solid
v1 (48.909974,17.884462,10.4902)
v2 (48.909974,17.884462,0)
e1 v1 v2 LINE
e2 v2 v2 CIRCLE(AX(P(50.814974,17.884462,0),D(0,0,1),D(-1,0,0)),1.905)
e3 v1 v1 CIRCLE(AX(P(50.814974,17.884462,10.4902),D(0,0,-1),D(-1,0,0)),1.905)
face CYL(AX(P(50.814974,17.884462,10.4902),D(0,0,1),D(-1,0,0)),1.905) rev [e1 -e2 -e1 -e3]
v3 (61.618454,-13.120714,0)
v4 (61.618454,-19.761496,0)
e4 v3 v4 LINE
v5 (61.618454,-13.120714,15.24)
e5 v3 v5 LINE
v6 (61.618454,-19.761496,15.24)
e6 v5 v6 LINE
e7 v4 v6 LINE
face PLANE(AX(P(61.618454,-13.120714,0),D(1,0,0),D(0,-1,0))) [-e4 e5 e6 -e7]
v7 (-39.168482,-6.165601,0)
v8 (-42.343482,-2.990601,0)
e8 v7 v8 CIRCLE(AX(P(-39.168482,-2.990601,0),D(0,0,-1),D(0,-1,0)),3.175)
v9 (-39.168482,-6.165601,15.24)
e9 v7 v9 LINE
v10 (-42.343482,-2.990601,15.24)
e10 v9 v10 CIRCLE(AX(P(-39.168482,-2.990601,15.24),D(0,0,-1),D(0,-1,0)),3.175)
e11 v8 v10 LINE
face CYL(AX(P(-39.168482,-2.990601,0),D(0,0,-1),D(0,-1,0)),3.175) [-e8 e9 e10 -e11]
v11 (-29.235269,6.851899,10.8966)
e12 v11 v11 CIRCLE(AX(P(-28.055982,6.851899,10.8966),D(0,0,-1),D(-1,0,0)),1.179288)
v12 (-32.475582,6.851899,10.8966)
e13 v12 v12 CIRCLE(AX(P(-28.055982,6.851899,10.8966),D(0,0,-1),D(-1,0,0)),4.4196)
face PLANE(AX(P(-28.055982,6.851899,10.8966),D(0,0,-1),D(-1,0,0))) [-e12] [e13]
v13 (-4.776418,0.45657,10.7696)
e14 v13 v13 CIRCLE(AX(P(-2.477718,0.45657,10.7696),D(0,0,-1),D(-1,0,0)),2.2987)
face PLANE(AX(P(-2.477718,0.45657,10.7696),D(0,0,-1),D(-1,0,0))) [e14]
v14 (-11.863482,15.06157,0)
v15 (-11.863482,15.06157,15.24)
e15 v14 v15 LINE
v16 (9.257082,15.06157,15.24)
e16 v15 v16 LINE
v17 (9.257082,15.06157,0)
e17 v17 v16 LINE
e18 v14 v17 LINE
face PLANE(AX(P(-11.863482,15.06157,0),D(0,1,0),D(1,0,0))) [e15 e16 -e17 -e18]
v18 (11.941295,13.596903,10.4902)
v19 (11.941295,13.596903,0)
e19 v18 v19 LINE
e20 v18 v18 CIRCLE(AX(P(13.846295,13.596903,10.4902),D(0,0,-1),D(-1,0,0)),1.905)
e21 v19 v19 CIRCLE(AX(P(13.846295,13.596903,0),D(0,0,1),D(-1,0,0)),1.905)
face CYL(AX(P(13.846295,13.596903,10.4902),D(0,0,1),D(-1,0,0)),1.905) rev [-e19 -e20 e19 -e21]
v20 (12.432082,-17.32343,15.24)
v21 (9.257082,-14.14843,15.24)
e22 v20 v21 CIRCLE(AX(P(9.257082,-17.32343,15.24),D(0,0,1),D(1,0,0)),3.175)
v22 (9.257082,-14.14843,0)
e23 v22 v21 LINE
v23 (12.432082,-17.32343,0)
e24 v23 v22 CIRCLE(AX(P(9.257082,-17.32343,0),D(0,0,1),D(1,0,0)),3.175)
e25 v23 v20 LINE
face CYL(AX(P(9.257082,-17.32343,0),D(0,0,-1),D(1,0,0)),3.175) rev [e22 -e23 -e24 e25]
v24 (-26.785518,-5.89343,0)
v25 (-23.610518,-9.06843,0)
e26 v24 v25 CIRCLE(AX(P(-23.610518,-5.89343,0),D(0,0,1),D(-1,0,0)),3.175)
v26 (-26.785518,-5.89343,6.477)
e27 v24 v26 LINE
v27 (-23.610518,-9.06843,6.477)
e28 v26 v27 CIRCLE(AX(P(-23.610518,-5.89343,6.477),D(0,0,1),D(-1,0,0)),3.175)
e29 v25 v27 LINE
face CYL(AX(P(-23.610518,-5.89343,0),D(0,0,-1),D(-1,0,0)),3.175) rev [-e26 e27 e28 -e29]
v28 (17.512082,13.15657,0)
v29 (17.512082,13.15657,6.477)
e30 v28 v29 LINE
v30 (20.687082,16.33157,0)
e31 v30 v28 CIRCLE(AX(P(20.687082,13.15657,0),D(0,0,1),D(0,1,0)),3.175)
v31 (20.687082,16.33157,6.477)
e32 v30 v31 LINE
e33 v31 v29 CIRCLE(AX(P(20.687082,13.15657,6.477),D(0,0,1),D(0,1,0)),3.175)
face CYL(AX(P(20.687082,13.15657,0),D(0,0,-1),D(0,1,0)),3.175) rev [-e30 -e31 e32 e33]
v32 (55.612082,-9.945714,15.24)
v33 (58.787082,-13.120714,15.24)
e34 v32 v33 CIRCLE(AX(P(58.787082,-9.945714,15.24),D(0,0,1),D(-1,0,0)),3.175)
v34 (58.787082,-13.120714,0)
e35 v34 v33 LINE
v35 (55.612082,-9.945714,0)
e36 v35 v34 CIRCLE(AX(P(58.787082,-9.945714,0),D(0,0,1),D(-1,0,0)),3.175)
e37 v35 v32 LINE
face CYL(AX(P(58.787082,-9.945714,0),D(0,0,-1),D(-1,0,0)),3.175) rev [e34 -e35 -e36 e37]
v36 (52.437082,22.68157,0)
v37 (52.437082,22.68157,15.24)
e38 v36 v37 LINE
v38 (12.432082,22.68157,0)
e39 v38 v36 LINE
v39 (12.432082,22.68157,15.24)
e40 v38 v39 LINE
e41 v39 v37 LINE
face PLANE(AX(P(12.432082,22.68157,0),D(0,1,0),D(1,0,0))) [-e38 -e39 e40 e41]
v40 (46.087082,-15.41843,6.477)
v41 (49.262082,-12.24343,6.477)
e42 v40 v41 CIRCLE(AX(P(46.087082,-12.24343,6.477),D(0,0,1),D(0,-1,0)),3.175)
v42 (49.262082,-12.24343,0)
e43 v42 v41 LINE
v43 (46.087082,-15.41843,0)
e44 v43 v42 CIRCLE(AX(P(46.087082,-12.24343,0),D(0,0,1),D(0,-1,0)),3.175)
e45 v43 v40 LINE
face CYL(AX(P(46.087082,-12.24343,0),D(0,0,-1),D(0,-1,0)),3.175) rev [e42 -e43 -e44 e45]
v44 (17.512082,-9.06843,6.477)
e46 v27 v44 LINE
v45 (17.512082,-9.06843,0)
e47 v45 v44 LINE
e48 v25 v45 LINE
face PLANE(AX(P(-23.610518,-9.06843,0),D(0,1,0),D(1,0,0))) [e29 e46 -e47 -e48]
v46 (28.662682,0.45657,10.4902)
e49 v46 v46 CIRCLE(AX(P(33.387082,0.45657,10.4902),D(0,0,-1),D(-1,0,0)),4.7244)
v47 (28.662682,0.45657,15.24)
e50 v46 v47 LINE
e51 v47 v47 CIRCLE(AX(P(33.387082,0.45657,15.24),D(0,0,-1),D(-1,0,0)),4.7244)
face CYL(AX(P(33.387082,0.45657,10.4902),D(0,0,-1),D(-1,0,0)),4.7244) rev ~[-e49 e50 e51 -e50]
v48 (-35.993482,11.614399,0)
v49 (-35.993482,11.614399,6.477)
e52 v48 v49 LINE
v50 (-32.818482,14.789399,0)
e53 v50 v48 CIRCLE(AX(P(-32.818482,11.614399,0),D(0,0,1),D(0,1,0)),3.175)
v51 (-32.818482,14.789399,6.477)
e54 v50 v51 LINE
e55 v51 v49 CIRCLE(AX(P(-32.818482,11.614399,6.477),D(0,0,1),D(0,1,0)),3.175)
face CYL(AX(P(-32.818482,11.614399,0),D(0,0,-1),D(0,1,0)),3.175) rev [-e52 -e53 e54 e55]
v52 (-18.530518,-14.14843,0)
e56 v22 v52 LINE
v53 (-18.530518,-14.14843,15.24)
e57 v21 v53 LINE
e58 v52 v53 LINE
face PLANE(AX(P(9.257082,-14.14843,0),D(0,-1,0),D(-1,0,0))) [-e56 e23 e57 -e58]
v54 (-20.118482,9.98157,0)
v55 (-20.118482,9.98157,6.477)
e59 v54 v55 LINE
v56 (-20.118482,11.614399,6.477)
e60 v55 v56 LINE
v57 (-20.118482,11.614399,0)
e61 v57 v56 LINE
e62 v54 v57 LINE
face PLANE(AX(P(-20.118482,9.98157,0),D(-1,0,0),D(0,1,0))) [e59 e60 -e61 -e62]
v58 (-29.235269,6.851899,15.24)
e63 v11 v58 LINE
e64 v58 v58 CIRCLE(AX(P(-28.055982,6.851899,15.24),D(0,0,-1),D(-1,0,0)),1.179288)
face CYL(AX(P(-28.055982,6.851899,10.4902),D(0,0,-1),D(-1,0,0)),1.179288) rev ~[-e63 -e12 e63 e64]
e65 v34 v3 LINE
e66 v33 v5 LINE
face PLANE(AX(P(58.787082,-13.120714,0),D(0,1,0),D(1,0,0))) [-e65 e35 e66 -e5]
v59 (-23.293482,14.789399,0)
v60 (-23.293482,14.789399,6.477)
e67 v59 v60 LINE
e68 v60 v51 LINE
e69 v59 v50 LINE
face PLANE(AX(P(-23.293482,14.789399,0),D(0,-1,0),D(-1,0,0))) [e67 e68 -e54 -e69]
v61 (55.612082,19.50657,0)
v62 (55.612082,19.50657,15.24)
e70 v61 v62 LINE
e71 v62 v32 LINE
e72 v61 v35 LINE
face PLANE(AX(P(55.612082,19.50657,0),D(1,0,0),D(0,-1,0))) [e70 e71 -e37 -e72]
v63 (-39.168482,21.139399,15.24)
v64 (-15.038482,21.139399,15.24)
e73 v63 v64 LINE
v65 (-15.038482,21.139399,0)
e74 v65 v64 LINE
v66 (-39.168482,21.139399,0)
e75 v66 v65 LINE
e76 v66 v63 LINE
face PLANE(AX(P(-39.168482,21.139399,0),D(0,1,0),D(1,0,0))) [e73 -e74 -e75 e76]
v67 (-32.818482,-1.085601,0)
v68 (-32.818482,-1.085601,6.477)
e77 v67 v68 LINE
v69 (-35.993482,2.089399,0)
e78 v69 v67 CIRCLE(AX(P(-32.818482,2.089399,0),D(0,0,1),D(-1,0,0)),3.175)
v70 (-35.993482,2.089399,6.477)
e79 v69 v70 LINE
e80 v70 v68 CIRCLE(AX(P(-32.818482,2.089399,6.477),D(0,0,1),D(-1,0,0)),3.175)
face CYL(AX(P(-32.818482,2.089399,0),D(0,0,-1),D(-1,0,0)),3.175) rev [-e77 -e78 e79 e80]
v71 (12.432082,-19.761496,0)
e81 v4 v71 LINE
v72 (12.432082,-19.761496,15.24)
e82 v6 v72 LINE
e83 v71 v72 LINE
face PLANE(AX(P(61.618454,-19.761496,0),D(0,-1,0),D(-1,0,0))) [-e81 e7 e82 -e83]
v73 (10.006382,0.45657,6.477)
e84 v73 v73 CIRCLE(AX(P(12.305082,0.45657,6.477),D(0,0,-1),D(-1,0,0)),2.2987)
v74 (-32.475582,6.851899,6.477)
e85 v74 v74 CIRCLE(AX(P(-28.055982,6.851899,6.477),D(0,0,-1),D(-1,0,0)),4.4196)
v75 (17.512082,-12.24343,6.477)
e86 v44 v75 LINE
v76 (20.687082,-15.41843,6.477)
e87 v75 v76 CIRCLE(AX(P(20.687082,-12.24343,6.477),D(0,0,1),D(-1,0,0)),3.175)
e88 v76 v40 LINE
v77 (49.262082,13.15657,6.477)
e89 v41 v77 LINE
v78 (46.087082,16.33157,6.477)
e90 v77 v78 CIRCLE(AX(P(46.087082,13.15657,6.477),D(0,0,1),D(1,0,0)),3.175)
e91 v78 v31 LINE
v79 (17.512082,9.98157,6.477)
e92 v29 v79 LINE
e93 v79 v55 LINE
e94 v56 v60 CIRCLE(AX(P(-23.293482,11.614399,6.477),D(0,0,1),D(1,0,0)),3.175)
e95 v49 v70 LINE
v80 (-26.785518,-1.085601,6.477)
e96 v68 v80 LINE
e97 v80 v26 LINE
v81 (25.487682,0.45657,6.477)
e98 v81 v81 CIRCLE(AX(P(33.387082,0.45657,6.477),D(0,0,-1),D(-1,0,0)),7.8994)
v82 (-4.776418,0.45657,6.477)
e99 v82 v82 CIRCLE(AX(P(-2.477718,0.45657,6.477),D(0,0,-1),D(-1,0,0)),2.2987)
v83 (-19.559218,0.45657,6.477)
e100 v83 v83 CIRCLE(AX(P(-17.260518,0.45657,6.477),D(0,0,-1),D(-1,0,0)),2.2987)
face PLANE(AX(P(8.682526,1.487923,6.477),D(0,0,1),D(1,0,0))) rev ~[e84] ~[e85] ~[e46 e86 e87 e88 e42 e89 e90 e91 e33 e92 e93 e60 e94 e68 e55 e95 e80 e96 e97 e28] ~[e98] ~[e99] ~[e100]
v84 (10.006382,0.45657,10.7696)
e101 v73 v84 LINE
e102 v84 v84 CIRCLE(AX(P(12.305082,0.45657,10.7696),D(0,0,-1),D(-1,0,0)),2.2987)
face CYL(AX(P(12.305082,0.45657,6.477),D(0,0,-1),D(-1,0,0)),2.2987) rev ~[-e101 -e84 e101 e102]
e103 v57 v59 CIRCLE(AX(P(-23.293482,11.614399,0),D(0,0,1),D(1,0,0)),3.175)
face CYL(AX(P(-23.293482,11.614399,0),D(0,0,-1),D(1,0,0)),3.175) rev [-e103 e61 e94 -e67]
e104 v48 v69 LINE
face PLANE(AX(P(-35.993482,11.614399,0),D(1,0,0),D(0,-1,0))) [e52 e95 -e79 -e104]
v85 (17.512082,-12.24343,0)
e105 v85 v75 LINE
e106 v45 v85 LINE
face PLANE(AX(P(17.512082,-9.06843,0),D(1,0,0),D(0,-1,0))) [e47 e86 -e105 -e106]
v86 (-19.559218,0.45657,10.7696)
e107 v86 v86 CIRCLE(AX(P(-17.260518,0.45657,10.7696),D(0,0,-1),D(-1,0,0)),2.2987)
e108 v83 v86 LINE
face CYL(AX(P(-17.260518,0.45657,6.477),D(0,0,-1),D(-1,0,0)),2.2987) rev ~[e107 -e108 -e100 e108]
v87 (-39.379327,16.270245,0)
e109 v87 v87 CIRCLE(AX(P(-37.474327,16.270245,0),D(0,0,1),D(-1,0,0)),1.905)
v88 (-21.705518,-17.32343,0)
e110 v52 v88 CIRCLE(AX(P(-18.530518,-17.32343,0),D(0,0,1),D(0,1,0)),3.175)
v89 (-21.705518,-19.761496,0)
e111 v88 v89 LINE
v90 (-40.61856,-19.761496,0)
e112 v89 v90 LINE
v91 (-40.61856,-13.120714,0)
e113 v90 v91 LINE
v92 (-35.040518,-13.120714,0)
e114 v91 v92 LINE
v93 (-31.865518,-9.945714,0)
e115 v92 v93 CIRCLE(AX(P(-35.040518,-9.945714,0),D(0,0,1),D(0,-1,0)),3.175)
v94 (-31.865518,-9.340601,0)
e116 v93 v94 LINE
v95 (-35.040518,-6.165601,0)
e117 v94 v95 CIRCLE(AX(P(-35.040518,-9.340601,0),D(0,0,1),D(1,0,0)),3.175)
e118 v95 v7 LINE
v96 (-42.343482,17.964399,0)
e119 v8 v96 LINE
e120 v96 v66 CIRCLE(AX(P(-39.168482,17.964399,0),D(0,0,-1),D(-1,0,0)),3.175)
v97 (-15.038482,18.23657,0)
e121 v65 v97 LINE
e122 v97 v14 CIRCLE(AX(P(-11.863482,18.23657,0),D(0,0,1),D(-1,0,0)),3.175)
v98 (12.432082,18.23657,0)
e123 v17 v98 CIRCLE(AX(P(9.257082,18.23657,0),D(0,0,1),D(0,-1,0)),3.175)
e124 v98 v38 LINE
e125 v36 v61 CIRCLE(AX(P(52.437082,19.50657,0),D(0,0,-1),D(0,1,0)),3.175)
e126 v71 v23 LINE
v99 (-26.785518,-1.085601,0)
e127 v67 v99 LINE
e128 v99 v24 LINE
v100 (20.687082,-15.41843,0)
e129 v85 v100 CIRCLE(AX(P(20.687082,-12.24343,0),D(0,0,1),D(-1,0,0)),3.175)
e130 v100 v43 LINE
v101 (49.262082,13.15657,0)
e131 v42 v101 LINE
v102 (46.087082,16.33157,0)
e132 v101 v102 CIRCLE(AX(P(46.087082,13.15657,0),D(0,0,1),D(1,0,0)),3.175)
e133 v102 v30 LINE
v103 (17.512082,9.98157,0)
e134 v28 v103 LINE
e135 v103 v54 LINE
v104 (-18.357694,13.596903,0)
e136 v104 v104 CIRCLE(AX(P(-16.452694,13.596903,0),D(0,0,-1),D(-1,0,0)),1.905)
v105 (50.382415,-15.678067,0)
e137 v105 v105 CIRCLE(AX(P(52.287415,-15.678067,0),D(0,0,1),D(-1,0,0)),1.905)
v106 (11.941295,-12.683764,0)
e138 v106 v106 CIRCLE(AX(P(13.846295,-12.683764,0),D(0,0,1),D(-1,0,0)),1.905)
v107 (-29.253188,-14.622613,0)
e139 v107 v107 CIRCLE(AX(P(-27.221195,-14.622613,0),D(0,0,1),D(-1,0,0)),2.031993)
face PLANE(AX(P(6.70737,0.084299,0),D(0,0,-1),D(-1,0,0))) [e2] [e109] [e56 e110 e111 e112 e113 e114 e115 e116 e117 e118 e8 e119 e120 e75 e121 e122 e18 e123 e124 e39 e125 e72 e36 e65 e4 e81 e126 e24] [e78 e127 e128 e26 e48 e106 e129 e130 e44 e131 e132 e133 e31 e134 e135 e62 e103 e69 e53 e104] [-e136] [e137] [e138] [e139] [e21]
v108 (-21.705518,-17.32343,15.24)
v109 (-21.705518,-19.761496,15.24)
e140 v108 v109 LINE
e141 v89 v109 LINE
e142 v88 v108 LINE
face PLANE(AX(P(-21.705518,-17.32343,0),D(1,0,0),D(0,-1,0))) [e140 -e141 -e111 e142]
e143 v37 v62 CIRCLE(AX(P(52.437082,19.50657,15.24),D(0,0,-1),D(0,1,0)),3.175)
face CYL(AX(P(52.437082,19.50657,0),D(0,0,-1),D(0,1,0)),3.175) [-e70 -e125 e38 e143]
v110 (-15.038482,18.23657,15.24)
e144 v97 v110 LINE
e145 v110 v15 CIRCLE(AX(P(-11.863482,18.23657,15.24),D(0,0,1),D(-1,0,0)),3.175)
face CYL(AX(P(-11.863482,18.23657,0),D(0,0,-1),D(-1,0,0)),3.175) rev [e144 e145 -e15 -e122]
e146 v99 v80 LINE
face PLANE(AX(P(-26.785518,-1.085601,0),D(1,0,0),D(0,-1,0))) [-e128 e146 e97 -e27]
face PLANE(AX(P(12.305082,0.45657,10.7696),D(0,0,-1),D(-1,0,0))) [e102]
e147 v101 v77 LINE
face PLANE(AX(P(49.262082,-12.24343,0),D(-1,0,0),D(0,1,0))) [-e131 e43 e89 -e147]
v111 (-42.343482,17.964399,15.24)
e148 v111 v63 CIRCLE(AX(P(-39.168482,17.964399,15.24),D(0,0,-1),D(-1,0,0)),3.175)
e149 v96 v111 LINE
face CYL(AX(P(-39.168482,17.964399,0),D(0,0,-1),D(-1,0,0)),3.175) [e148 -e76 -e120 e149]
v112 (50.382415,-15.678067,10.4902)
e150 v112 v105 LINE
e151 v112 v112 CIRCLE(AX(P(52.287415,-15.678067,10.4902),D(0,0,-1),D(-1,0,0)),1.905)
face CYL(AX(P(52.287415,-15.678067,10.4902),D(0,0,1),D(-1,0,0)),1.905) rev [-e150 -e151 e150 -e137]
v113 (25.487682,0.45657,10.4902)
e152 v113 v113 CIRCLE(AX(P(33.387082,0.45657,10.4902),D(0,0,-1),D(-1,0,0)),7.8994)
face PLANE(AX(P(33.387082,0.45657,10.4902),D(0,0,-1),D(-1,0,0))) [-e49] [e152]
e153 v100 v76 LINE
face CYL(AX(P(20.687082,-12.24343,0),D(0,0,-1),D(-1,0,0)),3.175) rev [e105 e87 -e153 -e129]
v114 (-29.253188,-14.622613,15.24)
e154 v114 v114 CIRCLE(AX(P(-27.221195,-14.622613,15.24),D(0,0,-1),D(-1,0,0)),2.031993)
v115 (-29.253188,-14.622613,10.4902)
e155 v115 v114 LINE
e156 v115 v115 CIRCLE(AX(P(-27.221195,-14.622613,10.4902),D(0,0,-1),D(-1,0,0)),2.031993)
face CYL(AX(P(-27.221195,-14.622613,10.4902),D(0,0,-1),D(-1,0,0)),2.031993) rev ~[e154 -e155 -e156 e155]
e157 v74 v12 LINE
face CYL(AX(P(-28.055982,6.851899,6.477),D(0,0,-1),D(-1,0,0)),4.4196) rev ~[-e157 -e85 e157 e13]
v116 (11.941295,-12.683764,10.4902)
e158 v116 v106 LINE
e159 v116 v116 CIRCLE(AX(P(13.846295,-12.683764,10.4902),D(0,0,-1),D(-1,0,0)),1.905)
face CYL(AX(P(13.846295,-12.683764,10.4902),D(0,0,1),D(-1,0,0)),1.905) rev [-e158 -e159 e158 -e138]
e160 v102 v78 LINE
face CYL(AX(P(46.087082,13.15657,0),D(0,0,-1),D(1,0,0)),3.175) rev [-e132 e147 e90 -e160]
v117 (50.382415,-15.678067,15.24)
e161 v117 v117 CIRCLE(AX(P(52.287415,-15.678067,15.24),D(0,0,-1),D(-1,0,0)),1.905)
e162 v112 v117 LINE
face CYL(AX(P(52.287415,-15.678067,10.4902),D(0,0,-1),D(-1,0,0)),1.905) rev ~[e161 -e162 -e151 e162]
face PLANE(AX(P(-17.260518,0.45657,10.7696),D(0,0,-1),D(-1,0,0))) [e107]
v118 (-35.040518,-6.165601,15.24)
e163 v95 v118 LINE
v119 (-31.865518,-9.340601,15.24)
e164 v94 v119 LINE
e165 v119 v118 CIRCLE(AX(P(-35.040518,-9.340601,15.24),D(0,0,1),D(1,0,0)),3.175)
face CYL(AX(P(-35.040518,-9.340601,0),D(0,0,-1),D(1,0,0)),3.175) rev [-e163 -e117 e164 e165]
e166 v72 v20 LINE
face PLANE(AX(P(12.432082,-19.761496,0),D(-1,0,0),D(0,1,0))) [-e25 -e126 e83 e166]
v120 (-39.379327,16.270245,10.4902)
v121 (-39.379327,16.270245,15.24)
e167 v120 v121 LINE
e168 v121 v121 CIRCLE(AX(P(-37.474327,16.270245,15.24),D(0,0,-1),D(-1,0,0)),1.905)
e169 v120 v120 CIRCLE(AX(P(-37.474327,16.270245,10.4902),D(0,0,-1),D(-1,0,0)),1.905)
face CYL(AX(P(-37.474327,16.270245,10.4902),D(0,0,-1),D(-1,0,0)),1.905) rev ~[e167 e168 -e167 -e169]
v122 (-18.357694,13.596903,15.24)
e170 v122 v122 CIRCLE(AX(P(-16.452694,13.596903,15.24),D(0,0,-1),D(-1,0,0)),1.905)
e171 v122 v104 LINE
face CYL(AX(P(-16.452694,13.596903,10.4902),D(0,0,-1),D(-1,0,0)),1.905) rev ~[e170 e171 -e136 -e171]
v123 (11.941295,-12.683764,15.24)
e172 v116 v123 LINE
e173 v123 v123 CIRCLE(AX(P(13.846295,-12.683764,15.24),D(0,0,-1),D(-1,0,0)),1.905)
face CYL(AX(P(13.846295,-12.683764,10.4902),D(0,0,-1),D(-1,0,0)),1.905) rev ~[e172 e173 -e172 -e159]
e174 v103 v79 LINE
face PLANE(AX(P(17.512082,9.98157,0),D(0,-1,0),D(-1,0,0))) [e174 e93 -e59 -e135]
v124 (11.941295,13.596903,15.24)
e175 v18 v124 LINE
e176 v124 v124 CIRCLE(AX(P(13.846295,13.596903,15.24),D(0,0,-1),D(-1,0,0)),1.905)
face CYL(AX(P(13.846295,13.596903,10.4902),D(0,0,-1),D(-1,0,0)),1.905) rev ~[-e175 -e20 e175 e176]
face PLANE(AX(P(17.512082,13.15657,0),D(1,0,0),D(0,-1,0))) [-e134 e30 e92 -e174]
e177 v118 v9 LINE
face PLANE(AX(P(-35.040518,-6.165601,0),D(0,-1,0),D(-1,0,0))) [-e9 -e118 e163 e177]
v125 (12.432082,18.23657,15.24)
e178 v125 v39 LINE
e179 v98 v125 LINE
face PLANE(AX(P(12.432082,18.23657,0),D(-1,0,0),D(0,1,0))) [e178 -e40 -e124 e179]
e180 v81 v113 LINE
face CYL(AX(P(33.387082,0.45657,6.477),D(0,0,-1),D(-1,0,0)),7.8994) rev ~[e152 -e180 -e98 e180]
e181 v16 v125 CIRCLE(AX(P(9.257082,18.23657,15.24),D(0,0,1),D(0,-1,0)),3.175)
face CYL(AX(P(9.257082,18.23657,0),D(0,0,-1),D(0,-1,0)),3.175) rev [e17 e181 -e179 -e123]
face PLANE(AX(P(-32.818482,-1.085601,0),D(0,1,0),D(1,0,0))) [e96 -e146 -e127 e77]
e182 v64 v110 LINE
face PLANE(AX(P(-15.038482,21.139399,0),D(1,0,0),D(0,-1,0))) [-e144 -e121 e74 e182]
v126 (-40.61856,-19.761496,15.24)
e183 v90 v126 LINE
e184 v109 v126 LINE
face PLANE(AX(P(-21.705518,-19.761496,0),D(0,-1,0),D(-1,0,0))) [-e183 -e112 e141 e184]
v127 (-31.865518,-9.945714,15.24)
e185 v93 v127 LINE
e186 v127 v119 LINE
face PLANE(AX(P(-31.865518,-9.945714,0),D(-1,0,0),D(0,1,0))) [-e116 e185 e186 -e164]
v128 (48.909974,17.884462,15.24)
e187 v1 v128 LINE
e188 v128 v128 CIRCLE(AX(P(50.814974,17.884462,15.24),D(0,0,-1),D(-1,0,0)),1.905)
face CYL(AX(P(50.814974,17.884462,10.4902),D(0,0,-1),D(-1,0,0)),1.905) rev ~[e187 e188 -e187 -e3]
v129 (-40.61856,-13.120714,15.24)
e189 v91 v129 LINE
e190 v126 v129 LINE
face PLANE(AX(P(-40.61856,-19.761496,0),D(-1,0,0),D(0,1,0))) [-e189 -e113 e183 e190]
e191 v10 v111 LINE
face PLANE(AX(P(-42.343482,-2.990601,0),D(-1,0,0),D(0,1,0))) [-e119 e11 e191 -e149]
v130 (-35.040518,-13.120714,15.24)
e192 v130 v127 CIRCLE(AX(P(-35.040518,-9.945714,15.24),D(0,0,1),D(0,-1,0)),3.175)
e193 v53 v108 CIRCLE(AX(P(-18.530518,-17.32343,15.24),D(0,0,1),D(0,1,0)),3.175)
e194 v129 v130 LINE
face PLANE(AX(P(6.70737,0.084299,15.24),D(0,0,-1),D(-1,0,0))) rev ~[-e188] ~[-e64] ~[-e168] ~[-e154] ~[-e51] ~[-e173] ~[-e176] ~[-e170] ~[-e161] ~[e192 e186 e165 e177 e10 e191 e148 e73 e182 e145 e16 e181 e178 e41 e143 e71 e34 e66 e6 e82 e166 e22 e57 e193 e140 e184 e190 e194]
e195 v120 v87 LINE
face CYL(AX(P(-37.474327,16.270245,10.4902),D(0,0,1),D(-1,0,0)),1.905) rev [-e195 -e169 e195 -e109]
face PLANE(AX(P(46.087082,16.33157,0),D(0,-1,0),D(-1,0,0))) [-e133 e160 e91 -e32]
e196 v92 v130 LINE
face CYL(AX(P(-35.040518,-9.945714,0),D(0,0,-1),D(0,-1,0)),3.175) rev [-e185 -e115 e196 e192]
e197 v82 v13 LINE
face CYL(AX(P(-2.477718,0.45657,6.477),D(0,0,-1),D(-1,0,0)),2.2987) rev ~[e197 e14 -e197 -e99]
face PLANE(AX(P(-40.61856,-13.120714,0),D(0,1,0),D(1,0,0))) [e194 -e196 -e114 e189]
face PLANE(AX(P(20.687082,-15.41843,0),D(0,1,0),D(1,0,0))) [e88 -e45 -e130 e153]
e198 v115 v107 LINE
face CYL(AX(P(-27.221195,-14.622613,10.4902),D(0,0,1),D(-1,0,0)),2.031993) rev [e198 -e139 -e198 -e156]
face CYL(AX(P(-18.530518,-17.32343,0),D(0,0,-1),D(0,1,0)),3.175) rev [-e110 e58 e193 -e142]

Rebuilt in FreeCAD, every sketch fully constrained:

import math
import FreeCAD as App
import Part
import Sketcher
from FreeCAD import Vector
Q = App.Units.Quantity

doc = App.newDocument("Part")
body = doc.addObject("PartDesign::Body", "Body")

sketch1 = body.newObject("Sketcher::SketchObject", "Sketch")
sketch1.AttachmentSupport = (doc.getObject("XY_Plane"), [""])
sketch1.MapMode = "FlatFace"
sketch1.addGeometry(Part.LineSegment(Vector(-42.3, 18, 0), Vector(-42.3, -3, 0)), False)
sketch1.addGeometry(Part.ArcOfCircle(Part.Circle(Vector(-39.2, -3, 0), Vector(0, 0, 1), 3.2), math.radians(180), math.radians(270)), False)
sketch1.addGeometry(Part.LineSegment(Vector(-39.2, -6.2, 0), Vector(-35, -6.2, 0)), False)
sketch1.addGeometry(Part.ArcOfCircle(Part.Circle(Vector(-35, -9.3, 0), Vector(0, 0, 1), 3.2), math.radians(0), math.radians(90)), False)
sketch1.addGeometry(Part.LineSegment(Vector(-31.9, -9.3, 0), Vector(-31.9, -9.9, 0)), False)
sketch1.addGeometry(Part.ArcOfCircle(Part.Circle(Vector(-35, -9.9, 0), Vector(0, 0, 1), 3.2), math.radians(-90), math.radians(0)), False)
sketch1.addGeometry(Part.LineSegment(Vector(-35, -13.1, 0), Vector(-40.6, -13.1, 0)), False)
sketch1.addGeometry(Part.LineSegment(Vector(-40.6, -13.1, 0), Vector(-40.6, -19.8, 0)), False)
sketch1.addGeometry(Part.LineSegment(Vector(-40.6, -19.8, 0), Vector(-21.7, -19.8, 0)), False)
sketch1.addGeometry(Part.LineSegment(Vector(-21.7, -19.8, 0), Vector(-21.7, -17.3, 0)), False)
sketch1.addGeometry(Part.ArcOfCircle(Part.Circle(Vector(-18.5, -17.3, 0), Vector(0, 0, 1), 3.2), math.radians(90), math.radians(180)), False)
sketch1.addGeometry(Part.LineSegment(Vector(-18.5, -14.1, 0), Vector(9.3, -14.1, 0)), False)
sketch1.addGeometry(Part.ArcOfCircle(Part.Circle(Vector(9.3, -17.3, 0), Vector(0, 0, 1), 3.2), math.radians(0), math.radians(90)), False)
sketch1.addGeometry(Part.LineSegment(Vector(12.4, -17.3, 0), Vector(12.4, -19.8, 0)), False)
sketch1.addGeometry(Part.LineSegment(Vector(12.4, -19.8, 0), Vector(61.6, -19.8, 0)), False)
sketch1.addGeometry(Part.LineSegment(Vector(61.6, -19.8, 0), Vector(61.6, -13.1, 0)), False)
sketch1.addGeometry(Part.LineSegment(Vector(61.6, -13.1, 0), Vector(58.8, -13.1, 0)), False)
sketch1.addGeometry(Part.ArcOfCircle(Part.Circle(Vector(58.8, -9.9, 0), Vector(0, 0, 1), 3.2), math.radians(-180), math.radians(-90)), False)
sketch1.addGeometry(Part.LineSegment(Vector(55.6, -9.9, 0), Vector(55.6, 19.5, 0)), False)
sketch1.addGeometry(Part.ArcOfCircle(Part.Circle(Vector(52.4, 19.5, 0), Vector(0, 0, 1), 3.2), math.radians(0), math.radians(90)), False)
sketch1.addGeometry(Part.LineSegment(Vector(52.4, 22.7, 0), Vector(12.4, 22.7, 0)), False)
sketch1.addGeometry(Part.LineSegment(Vector(12.4, 22.7, 0), Vector(12.4, 18.2, 0)), False)
sketch1.addGeometry(Part.ArcOfCircle(Part.Circle(Vector(9.3, 18.2, 0), Vector(0, 0, 1), 3.2), math.radians(-90), math.radians(0)), False)
sketch1.addGeometry(Part.LineSegment(Vector(9.3, 15.1, 0), Vector(-11.9, 15.1, 0)), False)
sketch1.addGeometry(Part.ArcOfCircle(Part.Circle(Vector(-11.9, 18.2, 0), Vector(0, 0, 1), 3.2), math.radians(-180), math.radians(-90)), False)
sketch1.addGeometry(Part.LineSegment(Vector(-15, 18.2, 0), Vector(-15, 21.1, 0)), False)
sketch1.addGeometry(Part.LineSegment(Vector(-15, 21.1, 0), Vector(-39.2, 21.1, 0)), False)
sketch1.addGeometry(Part.ArcOfCircle(Part.Circle(Vector(-39.2, 18, 0), Vector(0, 0, 1), 3.2), math.radians(90), math.radians(180)), False)
sketch1.addConstraint(Sketcher.Constraint("Tangent", 0, 2, 1, 1))
sketch1.addConstraint(Sketcher.Constraint("Tangent", 1, 2, 2, 1))
sketch1.addConstraint(Sketcher.Constraint("Tangent", 2, 2, 3, 2))
sketch1.addConstraint(Sketcher.Constraint("Tangent", 3, 1, 4, 1))
sketch1.addConstraint(Sketcher.Constraint("Tangent", 4, 2, 5, 2))
sketch1.addConstraint(Sketcher.Constraint("Tangent", 5, 1, 6, 1))
sketch1.addConstraint(Sketcher.Constraint("Coincident", 6, 2, 7, 1))
sketch1.addConstraint(Sketcher.Constraint("Coincident", 7, 2, 8, 1))
sketch1.addConstraint(Sketcher.Constraint("Coincident", 8, 2, 9, 1))
sketch1.addConstraint(Sketcher.Constraint("Tangent", 9, 2, 10, 2))
sketch1.addConstraint(Sketcher.Constraint("Tangent", 10, 1, 11, 1))
sketch1.addConstraint(Sketcher.Constraint("Tangent", 11, 2, 12, 2))
sketch1.addConstraint(Sketcher.Constraint("Tangent", 12, 1, 13, 1))
sketch1.addConstraint(Sketcher.Constraint("Coincident", 13, 2, 14, 1))
sketch1.addConstraint(Sketcher.Constraint("Coincident", 14, 2, 15, 1))
sketch1.addConstraint(Sketcher.Constraint("Coincident", 15, 2, 16, 1))
sketch1.addConstraint(Sketcher.Constraint("Tangent", 16, 2, 17, 2))
sketch1.addConstraint(Sketcher.Constraint("Tangent", 17, 1, 18, 1))
sketch1.addConstraint(Sketcher.Constraint("Tangent", 18, 2, 19, 1))
sketch1.addConstraint(Sketcher.Constraint("Tangent", 19, 2, 20, 1))
sketch1.addConstraint(Sketcher.Constraint("Coincident", 20, 2, 21, 1))
sketch1.addConstraint(Sketcher.Constraint("Tangent", 21, 2, 22, 2))
sketch1.addConstraint(Sketcher.Constraint("Tangent", 22, 1, 23, 1))
sketch1.addConstraint(Sketcher.Constraint("Tangent", 23, 2, 24, 2))
sketch1.addConstraint(Sketcher.Constraint("Tangent", 24, 1, 25, 1))
sketch1.addConstraint(Sketcher.Constraint("Coincident", 25, 2, 26, 1))
sketch1.addConstraint(Sketcher.Constraint("Tangent", 26, 2, 27, 1))
sketch1.addConstraint(Sketcher.Constraint("Tangent", 27, 2, 0, 1))
sketch1.addConstraint(Sketcher.Constraint("Vertical", 0))
sketch1.addConstraint(Sketcher.Constraint("Horizontal", 2))
sketch1.addConstraint(Sketcher.Constraint("Vertical", 4))
sketch1.addConstraint(Sketcher.Constraint("Horizontal", 6))
sketch1.addConstraint(Sketcher.Constraint("Vertical", 7))
sketch1.addConstraint(Sketcher.Constraint("Horizontal", 8))
sketch1.addConstraint(Sketcher.Constraint("Vertical", 9))
sketch1.addConstraint(Sketcher.Constraint("Horizontal", 11))
sketch1.addConstraint(Sketcher.Constraint("Vertical", 13))
sketch1.addConstraint(Sketcher.Constraint("Horizontal", 14))
sketch1.addConstraint(Sketcher.Constraint("Vertical", 15))
sketch1.addConstraint(Sketcher.Constraint("Horizontal", 16))
sketch1.addConstraint(Sketcher.Constraint("Vertical", 18))
sketch1.addConstraint(Sketcher.Constraint("Horizontal", 20))
sketch1.addConstraint(Sketcher.Constraint("Vertical", 21))
sketch1.addConstraint(Sketcher.Constraint("Horizontal", 23))
sketch1.addConstraint(Sketcher.Constraint("Vertical", 25))
sketch1.addConstraint(Sketcher.Constraint("Horizontal", 26))
sketch1.addConstraint(Sketcher.Constraint("Equal", 1, 3))
sketch1.addConstraint(Sketcher.Constraint("Equal", 3, 5))
sketch1.addConstraint(Sketcher.Constraint("Equal", 5, 10))
sketch1.addConstraint(Sketcher.Constraint("Equal", 10, 12))
sketch1.addConstraint(Sketcher.Constraint("Equal", 12, 17))
sketch1.addConstraint(Sketcher.Constraint("Equal", 17, 19))
sketch1.addConstraint(Sketcher.Constraint("Equal", 19, 22))
sketch1.addConstraint(Sketcher.Constraint("Equal", 22, 24))
sketch1.addConstraint(Sketcher.Constraint("Equal", 24, 27))
sketch1.addConstraint(Sketcher.Constraint("Horizontal", 5, 3, 17, 3))
sketch1.addConstraint(Sketcher.Constraint("Horizontal", 8, 2, 13, 2))
sketch1.addConstraint(Sketcher.Constraint("Vertical", 12, 3, 22, 3))
sketch1.addConstraint(Sketcher.Constraint("Radius", 1, Q("0.125 in")))
sketch1.addConstraint(Sketcher.Constraint("DistanceX", 26, 2, 26, 1, Q("0.95 in")))
sketch1.addConstraint(Sketcher.Constraint("DistanceX", 12, 3, 19, 3, Q("1.7 in")))
sketch1.addConstraint(Sketcher.Constraint("DistanceY", 12, 3, 22, 3, Q("1.4 in")))
sketch1.addConstraint(Sketcher.Constraint("DistanceX", 4, 2, 8, 2, Q("0.4 in")))
sketch1.addConstraint(Sketcher.Constraint("DistanceY", 22, 1, 20, 2, Q("0.3 in")))
sketch1.addConstraint(Sketcher.Constraint("DistanceX", 11, 1, 11, 2, Q("1.094 in")))
sketch1.addConstraint(Sketcher.Constraint("DistanceY", 0, 2, 0, 1, Q("0.825 in")))
sketch1.addConstraint(Sketcher.Constraint("DistanceX", 6, 2, 6, 1, 5.578042))
sketch1.addConstraint(Sketcher.Constraint("DistanceY", 7, 2, 7, 1, 6.640781))
sketch1.addConstraint(Sketcher.Constraint("DistanceY", 25, 1, 25, 2, 2.90283))
sketch1.addConstraint(Sketcher.Constraint("DistanceY", 1, 3, -1, 1, 2.990601))
sketch1.addConstraint(Sketcher.Constraint("DistanceX", 2, 1, 2, 2, 4.127963))
sketch1.addConstraint(Sketcher.Constraint("DistanceX", 14, 1, 14, 2, 49.186372))
sketch1.addConstraint(Sketcher.Constraint("DistanceY", 4, 2, 4, 1, 0.605114))
sketch1.addConstraint(Sketcher.Constraint("DistanceX", 1, 3, -1, 1, 39.168482))
pad1 = body.newObject("PartDesign::Pad", "Pad")
pad1.Profile = sketch1
pad1.Length = Q("0.6 in")

sketch2 = body.newObject("Sketcher::SketchObject", "Sketch001")
sketch2.AttachmentSupport = (doc.getObject("XY_Plane"), [""])
sketch2.MapMode = "FlatFace"
sketch2.addGeometry(Part.LineSegment(Vector(-36, 11.6, 0), Vector(-36, 2.1, 0)), False)
sketch2.addGeometry(Part.ArcOfCircle(Part.Circle(Vector(-32.8, 2.1, 0), Vector(0, 0, 1), 3.2), math.radians(180), math.radians(270)), False)
sketch2.addGeometry(Part.LineSegment(Vector(-32.8, -1.1, 0), Vector(-26.8, -1.1, 0)), False)
sketch2.addGeometry(Part.LineSegment(Vector(-26.8, -1.1, 0), Vector(-26.8, -5.9, 0)), False)
sketch2.addGeometry(Part.ArcOfCircle(Part.Circle(Vector(-23.6, -5.9, 0), Vector(0, 0, 1), 3.2), math.radians(-180), math.radians(-90)), False)
sketch2.addGeometry(Part.LineSegment(Vector(-23.6, -9.1, 0), Vector(17.5, -9.1, 0)), False)
sketch2.addGeometry(Part.LineSegment(Vector(17.5, -9.1, 0), Vector(17.5, -12.2, 0)), False)
sketch2.addGeometry(Part.ArcOfCircle(Part.Circle(Vector(20.7, -12.2, 0), Vector(0, 0, 1), 3.2), math.radians(-180), math.radians(-90)), False)
sketch2.addGeometry(Part.LineSegment(Vector(20.7, -15.4, 0), Vector(46.1, -15.4, 0)), False)
sketch2.addGeometry(Part.ArcOfCircle(Part.Circle(Vector(46.1, -12.2, 0), Vector(0, 0, 1), 3.2), math.radians(-90), math.radians(0)), False)
sketch2.addGeometry(Part.LineSegment(Vector(49.3, -12.2, 0), Vector(49.3, 13.2, 0)), False)
sketch2.addGeometry(Part.ArcOfCircle(Part.Circle(Vector(46.1, 13.2, 0), Vector(0, 0, 1), 3.2), math.radians(0), math.radians(90)), False)
sketch2.addGeometry(Part.LineSegment(Vector(46.1, 16.3, 0), Vector(20.7, 16.3, 0)), False)
sketch2.addGeometry(Part.ArcOfCircle(Part.Circle(Vector(20.7, 13.2, 0), Vector(0, 0, 1), 3.2), math.radians(90), math.radians(180)), False)
sketch2.addGeometry(Part.LineSegment(Vector(17.5, 13.2, 0), Vector(17.5, 10, 0)), False)
sketch2.addGeometry(Part.LineSegment(Vector(17.5, 10, 0), Vector(-20.1, 10, 0)), False)
sketch2.addGeometry(Part.LineSegment(Vector(-20.1, 10, 0), Vector(-20.1, 11.6, 0)), False)
sketch2.addGeometry(Part.ArcOfCircle(Part.Circle(Vector(-23.3, 11.6, 0), Vector(0, 0, 1), 3.2), math.radians(0), math.radians(90)), False)
sketch2.addGeometry(Part.LineSegment(Vector(-23.3, 14.8, 0), Vector(-32.8, 14.8, 0)), False)
sketch2.addGeometry(Part.ArcOfCircle(Part.Circle(Vector(-32.8, 11.6, 0), Vector(0, 0, 1), 3.2), math.radians(90), math.radians(180)), False)
sketch2.addConstraint(Sketcher.Constraint("Tangent", 0, 2, 1, 1))
sketch2.addConstraint(Sketcher.Constraint("Tangent", 1, 2, 2, 1))
sketch2.addConstraint(Sketcher.Constraint("Coincident", 2, 2, 3, 1))
sketch2.addConstraint(Sketcher.Constraint("Tangent", 3, 2, 4, 1))
sketch2.addConstraint(Sketcher.Constraint("Tangent", 4, 2, 5, 1))
sketch2.addConstraint(Sketcher.Constraint("Coincident", 5, 2, 6, 1))
sketch2.addConstraint(Sketcher.Constraint("Tangent", 6, 2, 7, 1))
sketch2.addConstraint(Sketcher.Constraint("Tangent", 7, 2, 8, 1))
sketch2.addConstraint(Sketcher.Constraint("Tangent", 8, 2, 9, 1))
sketch2.addConstraint(Sketcher.Constraint("Tangent", 9, 2, 10, 1))
sketch2.addConstraint(Sketcher.Constraint("Tangent", 10, 2, 11, 1))
sketch2.addConstraint(Sketcher.Constraint("Tangent", 11, 2, 12, 1))
sketch2.addConstraint(Sketcher.Constraint("Tangent", 12, 2, 13, 1))
sketch2.addConstraint(Sketcher.Constraint("Tangent", 13, 2, 14, 1))
sketch2.addConstraint(Sketcher.Constraint("Coincident", 14, 2, 15, 1))
sketch2.addConstraint(Sketcher.Constraint("Coincident", 15, 2, 16, 1))
sketch2.addConstraint(Sketcher.Constraint("Tangent", 16, 2, 17, 1))
sketch2.addConstraint(Sketcher.Constraint("Tangent", 17, 2, 18, 1))
sketch2.addConstraint(Sketcher.Constraint("Tangent", 18, 2, 19, 1))
sketch2.addConstraint(Sketcher.Constraint("Tangent", 19, 2, 0, 1))
sketch2.addConstraint(Sketcher.Constraint("Vertical", 0))
sketch2.addConstraint(Sketcher.Constraint("Horizontal", 2))
sketch2.addConstraint(Sketcher.Constraint("Vertical", 3))
sketch2.addConstraint(Sketcher.Constraint("Horizontal", 5))
sketch2.addConstraint(Sketcher.Constraint("Vertical", 6))
sketch2.addConstraint(Sketcher.Constraint("Horizontal", 8))
sketch2.addConstraint(Sketcher.Constraint("Vertical", 10))
sketch2.addConstraint(Sketcher.Constraint("Horizontal", 12))
sketch2.addConstraint(Sketcher.Constraint("Vertical", 14))
sketch2.addConstraint(Sketcher.Constraint("Horizontal", 15))
sketch2.addConstraint(Sketcher.Constraint("Vertical", 16))
sketch2.addConstraint(Sketcher.Constraint("Horizontal", 18))
sketch2.addConstraint(Sketcher.Constraint("Equal", 1, 4))
sketch2.addConstraint(Sketcher.Constraint("Equal", 4, 7))
sketch2.addConstraint(Sketcher.Constraint("Equal", 7, 9))
sketch2.addConstraint(Sketcher.Constraint("Equal", 9, 11))
sketch2.addConstraint(Sketcher.Constraint("Equal", 11, 13))
sketch2.addConstraint(Sketcher.Constraint("Equal", 13, 17))
sketch2.addConstraint(Sketcher.Constraint("Equal", 17, 19))
sketch2.addConstraint(Sketcher.Constraint("Vertical", 7, 3, 13, 3))
sketch2.addConstraint(Sketcher.Constraint("Equal", 18, 0))
sketch2.addConstraint(Sketcher.Constraint("Equal", 12, 10))
sketch2.addConstraint(Sketcher.Constraint("Equal", 6, 14))
sketch2.addConstraint(Sketcher.Constraint("DistanceX", 8, 1, 8, 2, Q("1 in")))
sketch2.addConstraint(Sketcher.Constraint("Radius", 1, Q("0.125 in")))
sketch2.addConstraint(Sketcher.Constraint("DistanceY", 5, 2, 12, 2, Q("1 in")))
sketch2.addConstraint(Sketcher.Constraint("DistanceX", 0, 2, 17, 3, Q("0.5 in")))
sketch2.addConstraint(Sketcher.Constraint("DistanceX", 5, 1, 5, 2, Q("1.619 in")))
sketch2.addConstraint(Sketcher.Constraint("DistanceY", 3, 2, 3, 1, 4.80783))
sketch2.addConstraint(Sketcher.Constraint("DistanceY", -1, 1, 1, 3, 2.089399))
sketch2.addConstraint(Sketcher.Constraint("DistanceX", 2, 1, 2, 2, 6.032963))
sketch2.addConstraint(Sketcher.Constraint("DistanceX", 1, 3, -1, 1, 32.818482))
pocket1 = body.newObject("PartDesign::Pocket", "Pocket")
pocket1.Profile = sketch2
pocket1.Length = Q("0.255 in")
pocket1.Reversed = True

sketch3 = body.newObject("Sketcher::SketchObject", "Sketch002")
sketch3.AttachmentSupport = (doc.getObject("XY_Plane"), [""])
sketch3.MapMode = "FlatFace"
sketch3.AttachmentOffset = App.Placement(Vector(0, 0, 0.255 * 25.4), App.Rotation())
sketch3.addGeometry(Part.Circle(Vector(33, 0, 0), Vector(0, 0, 1), 8), False)
sketch3.addConstraint(Sketcher.Constraint("Diameter", 0, Q("0.622 in")))
sketch3.addConstraint(Sketcher.Constraint("DistanceX", -1, 1, 0, 3, 33.387082))
sketch3.addConstraint(Sketcher.Constraint("DistanceY", -1, 1, 0, 3, 0.45657))
pocket2 = body.newObject("PartDesign::Pocket", "Pocket001")
pocket2.Profile = sketch3
pocket2.Length = Q("0.158 in")
pocket2.Reversed = True

sketch4 = body.newObject("Sketcher::SketchObject", "Sketch003")
sketch4.AttachmentSupport = (doc.getObject("XY_Plane"), [""])
sketch4.MapMode = "FlatFace"
sketch4.AttachmentOffset = App.Placement(Vector(0, 0, 0.255 * 25.4), App.Rotation())
sketch4.addGeometry(Part.Circle(Vector(12.3, 0.5, 0), Vector(0, 0, 1), 2.3), False)
sketch4.addGeometry(Part.Circle(Vector(-2.5, 0.5, 0), Vector(0, 0, 1), 2.3), False)
sketch4.addGeometry(Part.Circle(Vector(-17.3, 0.5, 0), Vector(0, 0, 1), 2.3), False)
sketch4.addConstraint(Sketcher.Constraint("Equal", 0, 1))
sketch4.addConstraint(Sketcher.Constraint("Equal", 1, 2))
sketch4.addConstraint(Sketcher.Constraint("Horizontal", 0, 3, 1, 3))
sketch4.addConstraint(Sketcher.Constraint("Horizontal", 1, 3, 2, 3))
sketch4.addConstraint(Sketcher.Constraint("Diameter", 0, Q("0.181 in")))
sketch4.addConstraint(Sketcher.Constraint("DistanceX", 1, 3, 0, 3, Q("0.582 in")))
sketch4.addConstraint(Sketcher.Constraint("DistanceX", 2, 3, 1, 3, Q("0.582 in")))
sketch4.addConstraint(Sketcher.Constraint("DistanceX", -1, 1, 0, 3, 12.305082))
sketch4.addConstraint(Sketcher.Constraint("DistanceY", -1, 1, 0, 3, 0.45657))
pocket3 = body.newObject("PartDesign::Pocket", "Pocket002")
pocket3.Profile = sketch4
pocket3.Length = Q("0.169 in")
pocket3.Reversed = True

sketch5 = body.newObject("Sketcher::SketchObject", "Sketch004")
sketch5.AttachmentSupport = (doc.getObject("XY_Plane"), [""])
sketch5.MapMode = "FlatFace"
sketch5.AttachmentOffset = App.Placement(Vector(0, 0, 0.255 * 25.4), App.Rotation())
sketch5.addGeometry(Part.Circle(Vector(-28.1, 6.9, 0), Vector(0, 0, 1), 4.4), False)
sketch5.addConstraint(Sketcher.Constraint("Diameter", 0, Q("0.348 in")))
sketch5.addConstraint(Sketcher.Constraint("DistanceY", -1, 1, 0, 3, 6.851899))
sketch5.addConstraint(Sketcher.Constraint("DistanceX", 0, 3, -1, 1, 28.055982))
pocket4 = body.newObject("PartDesign::Pocket", "Pocket003")
pocket4.Profile = sketch5
pocket4.Length = Q("0.174 in")
pocket4.Reversed = True

sketch6 = body.newObject("Sketcher::SketchObject", "Sketch005")
sketch6.AttachmentSupport = (doc.getObject("XY_Plane"), [""])
sketch6.MapMode = "FlatFace"
sketch6.AttachmentOffset = App.Placement(Vector(0, 0, 0.413 * 25.4), App.Rotation())
sketch6.addGeometry(Part.Circle(Vector(33.4, 0.5, 0), Vector(0, 0, 1), 4.7), False)
sketch6.addGeometry(Part.Circle(Vector(52.3, -15.7, 0), Vector(0, 0, 1), 1.9), False)
sketch6.addGeometry(Part.Circle(Vector(-28.1, 6.9, 0), Vector(0, 0, 1), 1.2), False)
sketch6.addGeometry(Part.Circle(Vector(-37.5, 16.3, 0), Vector(0, 0, 1), 1.9), False)
sketch6.addGeometry(Part.Circle(Vector(13.8, 13.6, 0), Vector(0, 0, 1), 1.9), False)
sketch6.addGeometry(Part.Circle(Vector(13.8, -12.7, 0), Vector(0, 0, 1), 1.9), False)
sketch6.addGeometry(Part.Circle(Vector(-27.2, -14.6, 0), Vector(0, 0, 1), 2), False)
sketch6.addGeometry(Part.Circle(Vector(50.8, 17.9, 0), Vector(0, 0, 1), 1.9), False)
sketch6.addGeometry(Part.Circle(Vector(-16.5, 13.6, 0), Vector(0, 0, 1), 1.9), False)
sketch6.addConstraint(Sketcher.Constraint("Equal", 1, 3))
sketch6.addConstraint(Sketcher.Constraint("Equal", 3, 4))
sketch6.addConstraint(Sketcher.Constraint("Equal", 4, 5))
sketch6.addConstraint(Sketcher.Constraint("Equal", 5, 7))
sketch6.addConstraint(Sketcher.Constraint("Equal", 7, 8))
sketch6.addConstraint(Sketcher.Constraint("Horizontal", 4, 3, 8, 3))
sketch6.addConstraint(Sketcher.Constraint("Vertical", 4, 3, 5, 3))
sketch6.addConstraint(Sketcher.Constraint("Diameter", 1, Q("0.15 in")))
sketch6.addConstraint(Sketcher.Constraint("Diameter", 0, Q("0.372 in")))
sketch6.addConstraint(Sketcher.Constraint("Diameter", 2, 2.358575))
sketch6.addConstraint(Sketcher.Constraint("Diameter", 6, 4.063985))
sketch6.addConstraint(Sketcher.Constraint("DistanceY", -1, 1, 2, 3, 6.851899))
sketch6.addConstraint(Sketcher.Constraint("DistanceX", 6, 3, 8, 3, 10.768501))
sketch6.addConstraint(Sketcher.Constraint("DistanceX", -1, 1, 0, 3, 33.387082))
sketch6.addConstraint(Sketcher.Constraint("DistanceY", -1, 1, 0, 3, 0.45657))
sketch6.addConstraint(Sketcher.Constraint("DistanceX", 2, 3, -1, 1, 28.055982))
sketch6.addConstraint(Sketcher.Constraint("DistanceY", -1, 1, 7, 3, 17.884462))
sketch6.addConstraint(Sketcher.Constraint("DistanceX", 3, 3, 0, 3, 70.861408))
sketch6.addConstraint(Sketcher.Constraint("DistanceY", 1, 3, 3, 3, 31.948311))
sketch6.addConstraint(Sketcher.Constraint("DistanceX", 4, 3, 1, 3, 38.441121))
sketch6.addConstraint(Sketcher.Constraint("DistanceY", 1, 3, 4, 3, 29.27497))
sketch6.addConstraint(Sketcher.Constraint("DistanceX", 3, 3, 4, 3, 51.320621))
sketch6.addConstraint(Sketcher.Constraint("DistanceY", 5, 3, 3, 3, 28.954008))
sketch6.addConstraint(Sketcher.Constraint("DistanceX", 3, 3, 6, 3, 10.253132))
sketch6.addConstraint(Sketcher.Constraint("DistanceY", 6, 3, 3, 3, 30.892858))
sketch6.addConstraint(Sketcher.Constraint("DistanceX", 7, 3, 1, 3, 1.472441))
sketch6.addConstraint(Sketcher.Constraint("DistanceY", 1, 3, 7, 3, 33.562529))
pocket5 = body.newObject("PartDesign::Pocket", "Pocket004")
pocket5.Profile = sketch6
pocket5.Length = Q("1.384 in")
pocket5.Midplane = True

doc.recompute()
